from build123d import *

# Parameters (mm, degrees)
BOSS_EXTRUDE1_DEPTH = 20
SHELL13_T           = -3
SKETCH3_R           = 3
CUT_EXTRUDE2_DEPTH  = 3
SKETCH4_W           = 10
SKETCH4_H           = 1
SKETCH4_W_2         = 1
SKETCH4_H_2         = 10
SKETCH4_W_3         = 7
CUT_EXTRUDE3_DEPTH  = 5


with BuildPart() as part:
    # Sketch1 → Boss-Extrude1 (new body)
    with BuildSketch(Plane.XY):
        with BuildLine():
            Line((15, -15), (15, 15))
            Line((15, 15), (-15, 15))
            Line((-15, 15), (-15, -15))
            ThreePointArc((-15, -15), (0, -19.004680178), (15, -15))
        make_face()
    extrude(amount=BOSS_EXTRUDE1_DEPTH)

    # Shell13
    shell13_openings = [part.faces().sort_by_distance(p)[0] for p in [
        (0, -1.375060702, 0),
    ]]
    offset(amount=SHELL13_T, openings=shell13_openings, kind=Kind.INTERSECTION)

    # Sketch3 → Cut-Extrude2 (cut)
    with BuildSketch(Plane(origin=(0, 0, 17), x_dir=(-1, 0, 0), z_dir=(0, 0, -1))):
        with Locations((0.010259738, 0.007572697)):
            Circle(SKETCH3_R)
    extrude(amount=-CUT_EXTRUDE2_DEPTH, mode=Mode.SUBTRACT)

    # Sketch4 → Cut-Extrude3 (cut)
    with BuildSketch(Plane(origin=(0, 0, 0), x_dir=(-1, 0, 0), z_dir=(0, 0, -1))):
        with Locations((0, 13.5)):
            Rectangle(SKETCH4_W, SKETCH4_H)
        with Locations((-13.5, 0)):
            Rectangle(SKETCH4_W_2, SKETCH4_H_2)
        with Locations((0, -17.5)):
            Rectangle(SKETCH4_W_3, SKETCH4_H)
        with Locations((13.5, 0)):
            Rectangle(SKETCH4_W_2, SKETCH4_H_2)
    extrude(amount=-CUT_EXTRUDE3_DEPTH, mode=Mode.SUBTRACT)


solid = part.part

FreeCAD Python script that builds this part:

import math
import FreeCAD as App
import Part
import Sketcher
Q = App.Units.Quantity


def faces_at(feature, points):
    """Names of the faces that lie closest to the given points."""
    faces = feature.Shape.Faces
    near = lambda p: min(range(len(faces)), key=lambda i: faces[i].distToShape(Part.Vertex(*p))[0])
    return sorted({f"Face{near(p) + 1}" for p in points})


def add_polygon(sketch, points):
    """Adds a closed chain of lines whose ends are joined by coincident constraints."""
    first, n = sketch.GeometryCount, len(points)
    for a, b in zip(points, points[1:] + points[:1]):
        sketch.addGeometry(Part.LineSegment(App.Vector(*a, 0), App.Vector(*b, 0)), False)
    for i in range(n):
        sketch.addConstraint(Sketcher.Constraint("Coincident", first + i, 2, first + (i + 1) % n, 1))

doc = App.newDocument("Part")
body = doc.addObject("PartDesign::Body", "Body")

sketch1 = doc.addObject("Sketcher::SketchObject", "Sketch")
body.addObject(sketch1)
sketch1.AttachmentSupport = (doc.XY_Plane, [""])
sketch1.MapMode = "FlatFace"
sketch1.addGeometry(Part.LineSegment(App.Vector(15, -15, 0), App.Vector(15, 15, 0)), False)
sketch1.addGeometry(Part.LineSegment(App.Vector(15, 15, 0), App.Vector(-15, 15, 0)), False)
sketch1.addGeometry(Part.LineSegment(App.Vector(-15, 15, 0), App.Vector(-15, -15, 0)), False)
sketch1.addGeometry(Part.ArcOfCircle(Part.Circle(App.Vector(0, 11, 0), App.Vector(0, 0, 1), 30), math.radians(-120), math.radians(-60)), False)
sketch1.addConstraint(Sketcher.Constraint("Coincident", 0, 2, 1, 1))
sketch1.addConstraint(Sketcher.Constraint("Coincident", 1, 2, 2, 1))
sketch1.addConstraint(Sketcher.Constraint("Coincident", 2, 2, 3, 1))
sketch1.addConstraint(Sketcher.Constraint("Coincident", 3, 2, 0, 1))
sketch1.addConstraint(Sketcher.Constraint("Vertical", 0))
sketch1.addConstraint(Sketcher.Constraint("Horizontal", 1))
sketch1.addConstraint(Sketcher.Constraint("Vertical", 2))
sketch1.addConstraint(Sketcher.Constraint("Symmetric", 0, 2, 2, 2, -1, 1))
sketch1.addConstraint(Sketcher.Constraint("PointOnObject", 3, 3, -2))
sketch1.addConstraint(Sketcher.Constraint("Equal", 1, 0))
sketch1.addConstraint(Sketcher.Constraint("DistanceX", 1, 2, 1, 1, Q("30 mm")))
sketch1.addConstraint(Sketcher.Constraint("Radius", 3, Q("30.094471 mm")))
pad1 = doc.addObject("PartDesign::Pad", "Pad")
body.addObject(pad1)
pad1.Profile = sketch1
pad1.Length = 20
doc.recompute()

thickness = doc.addObject("PartDesign::Thickness", "Thickness")
body.addObject(thickness)
thickness.Base = (pad1, faces_at(pad1, [(0, -2.002, 0)]))
thickness.Value = 3
thickness.Reversed = True
thickness.Join = "Intersection"

sketch2 = doc.addObject("Sketcher::SketchObject", "Sketch001")
body.addObject(sketch2)
sketch2.AttachmentSupport = (doc.XY_Plane, [""])
sketch2.MapMode = "FlatFace"
sketch2.AttachmentOffset = App.Placement(App.Vector(0, 0, 17), App.Rotation())
sketch2.addGeometry(Part.Circle(App.Vector(0, 0, 0), App.Vector(0, 0, 1), 3), False)
sketch2.addConstraint(Sketcher.Constraint("Diameter", 0, Q("6 mm")))
sketch2.addConstraint(Sketcher.Constraint("DistanceX", 0, 3, -1, 1, Q("0.01026 mm")))
sketch2.addConstraint(Sketcher.Constraint("DistanceY", -1, 1, 0, 3, Q("0.007573 mm")))
pocket1 = doc.addObject("PartDesign::Pocket", "Pocket")
body.addObject(pocket1)
pocket1.Profile = sketch2
pocket1.Length = 3
pocket1.Reversed = True

sketch3 = doc.addObject("Sketcher::SketchObject", "Sketch002")
body.addObject(sketch3)
sketch3.AttachmentSupport = (doc.XY_Plane, [""])
sketch3.MapMode = "FlatFace"
add_polygon(sketch3, [(5, 14), (5, 13), (-5, 13), (-5, 14)])
add_polygon(sketch3, [(14, 5), (14, -5), (13, -5), (13, 5)])
add_polygon(sketch3, [(3.5, -17), (3.5, -18), (-3.5, -18), (-3.5, -17)])
add_polygon(sketch3, [(-13, 5), (-13, -5), (-14, -5), (-14, 5)])
sketch3.addConstraint(Sketcher.Constraint("Vertical", 0))
sketch3.addConstraint(Sketcher.Constraint("Horizontal", 1))
sketch3.addConstraint(Sketcher.Constraint("Vertical", 2))
sketch3.addConstraint(Sketcher.Constraint("Horizontal", 3))
sketch3.addConstraint(Sketcher.Constraint("Vertical", 4))
sketch3.addConstraint(Sketcher.Constraint("Horizontal", 5))
sketch3.addConstraint(Sketcher.Constraint("Vertical", 6))
sketch3.addConstraint(Sketcher.Constraint("Horizontal", 7))
sketch3.addConstraint(Sketcher.Constraint("Vertical", 8))
sketch3.addConstraint(Sketcher.Constraint("Horizontal", 9))
sketch3.addConstraint(Sketcher.Constraint("Vertical", 10))
sketch3.addConstraint(Sketcher.Constraint("Horizontal", 11))
sketch3.addConstraint(Sketcher.Constraint("Vertical", 12))
sketch3.addConstraint(Sketcher.Constraint("Horizontal", 13))
sketch3.addConstraint(Sketcher.Constraint("Vertical", 14))
sketch3.addConstraint(Sketcher.Constraint("Horizontal", 15))
sketch3.addConstraint(Sketcher.Constraint("Symmetric", 6, 2, 12, 2, -1, 1))
sketch3.addConstraint(Sketcher.Constraint("Symmetric", 4, 2, 14, 2, -1, 1))
sketch3.addConstraint(Sketcher.Constraint("Horizontal", 5, 2, 12, 2))
sketch3.addConstraint(Sketcher.Constraint("Equal", 15, 0))
sketch3.addConstraint(Sketcher.Constraint("Equal", 3, 4))
sketch3.addConstraint(Sketcher.Constraint("Equal", 2, 8))
sketch3.addConstraint(Sketcher.Constraint("DistanceX", 1, 2, 1, 1, Q("10 mm")))
sketch3.addConstraint(Sketcher.Constraint("DistanceX", 5, 2, 5, 1, Q("1 mm")))
sketch3.addConstraint(Sketcher.Constraint("DistanceX", 9, 2, 9, 1, Q("7 mm")))
sketch3.addConstraint(Sketcher.Constraint("DistanceX", -1, 1, 0, 2, Q("5 mm")))
sketch3.addConstraint(Sketcher.Constraint("DistanceY", -1, 1, 0, 2, Q("13 mm")))
sketch3.addConstraint(Sketcher.Constraint("DistanceX", -1, 1, 4, 2, Q("14 mm")))
sketch3.addConstraint(Sketcher.Constraint("DistanceY", 8, 2, -1, 1, Q("18 mm")))
sketch3.addConstraint(Sketcher.Constraint("DistanceX", -1, 1, 8, 2, Q("3.5 mm")))
pocket2 = doc.addObject("PartDesign::Pocket", "Pocket001")
body.addObject(pocket2)
pocket2.Profile = sketch3
pocket2.Length = 5
pocket2.Reversed = True

doc.recompute()
